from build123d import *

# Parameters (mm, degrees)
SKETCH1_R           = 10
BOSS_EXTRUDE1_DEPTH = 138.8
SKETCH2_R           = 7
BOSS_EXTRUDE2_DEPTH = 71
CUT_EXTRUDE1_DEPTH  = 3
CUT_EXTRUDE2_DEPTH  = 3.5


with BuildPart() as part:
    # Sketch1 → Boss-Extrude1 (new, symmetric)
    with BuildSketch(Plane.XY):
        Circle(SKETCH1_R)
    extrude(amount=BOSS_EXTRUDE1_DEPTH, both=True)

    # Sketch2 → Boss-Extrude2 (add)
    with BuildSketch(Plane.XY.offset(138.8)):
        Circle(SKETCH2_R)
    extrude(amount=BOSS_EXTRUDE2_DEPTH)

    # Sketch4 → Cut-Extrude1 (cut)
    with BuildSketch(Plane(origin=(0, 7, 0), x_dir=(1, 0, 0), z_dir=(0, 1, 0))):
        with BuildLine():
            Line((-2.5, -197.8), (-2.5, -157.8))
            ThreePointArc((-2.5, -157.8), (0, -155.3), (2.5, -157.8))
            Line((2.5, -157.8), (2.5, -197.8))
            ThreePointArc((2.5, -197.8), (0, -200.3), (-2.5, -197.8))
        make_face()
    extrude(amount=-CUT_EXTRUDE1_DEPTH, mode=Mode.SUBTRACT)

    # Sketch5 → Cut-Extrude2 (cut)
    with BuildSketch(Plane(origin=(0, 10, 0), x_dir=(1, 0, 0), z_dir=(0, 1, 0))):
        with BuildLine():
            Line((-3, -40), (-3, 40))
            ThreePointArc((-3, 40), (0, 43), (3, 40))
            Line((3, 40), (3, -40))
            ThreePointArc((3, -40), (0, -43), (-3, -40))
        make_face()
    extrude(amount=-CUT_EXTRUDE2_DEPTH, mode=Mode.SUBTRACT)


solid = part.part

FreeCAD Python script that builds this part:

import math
import FreeCAD as App
import Part
import Sketcher
from FreeCAD import Vector
Q = App.Units.Quantity

doc = App.newDocument("Part")
body = doc.addObject("PartDesign::Body", "Body")

sketch1 = body.newObject("Sketcher::SketchObject", "Sketch")
sketch1.AttachmentSupport = (doc.getObject("XY_Plane"), [""])
sketch1.MapMode = "FlatFace"
sketch1.addGeometry(Part.Circle(Vector(0, 0, 0), Vector(0, 0, 1), 10), False)
sketch1.addConstraint([
    Sketcher.Constraint("Coincident", 0, 3, -1, 1),
    Sketcher.Constraint("Diameter", 0, Q("20 mm")),
])
pad1 = body.newObject("PartDesign::Pad", "Pad")
pad1.Profile = sketch1
pad1.Length = 277.6
pad1.Midplane = True

sketch2 = body.newObject("Sketcher::SketchObject", "Sketch001")
sketch2.AttachmentSupport = (doc.getObject("XY_Plane"), [""])
sketch2.MapMode = "FlatFace"
sketch2.AttachmentOffset = App.Placement(Vector(0, 0, 138.8), App.Rotation())
sketch2.addGeometry(Part.Circle(Vector(0, 0, 0), Vector(0, 0, 1), 7), False)
sketch2.addConstraint([
    Sketcher.Constraint("Coincident", 0, 3, -1, 1),
    Sketcher.Constraint("Diameter", 0, Q("14 mm")),
])
pad2 = body.newObject("PartDesign::Pad", "Pad001")
pad2.Profile = sketch2
pad2.Length = 71

sketch3 = body.newObject("Sketcher::SketchObject", "Sketch002")
sketch3.AttachmentSupport = (doc.getObject("XZ_Plane"), [""])
sketch3.MapMode = "FlatFace"
sketch3.AttachmentOffset = App.Placement(Vector(0, 0, -7), App.Rotation())
sketch3.addGeometry([
    Part.LineSegment(Vector(-2.5, 157.8, 0), Vector(-2.5, 197.8, 0)),
    Part.ArcOfCircle(Part.Circle(Vector(0, 197.8, 0), Vector(0, 0, 1), 2.5), math.radians(0), math.radians(180)),
    Part.LineSegment(Vector(2.5, 197.8, 0), Vector(2.5, 157.8, 0)),
    Part.ArcOfCircle(Part.Circle(Vector(0, 157.8, 0), Vector(0, 0, 1), 2.5), math.radians(180), math.radians(360)),
], False)
sketch3.addConstraint([
    Sketcher.Constraint("Tangent", 0, 2, 1, 2),
    Sketcher.Constraint("Tangent", 1, 1, 2, 1),
    Sketcher.Constraint("Tangent", 2, 2, 3, 2),
    Sketcher.Constraint("Tangent", 3, 1, 0, 1),
    Sketcher.Constraint("Vertical", 0),
    Sketcher.Constraint("Vertical", 2),
    Sketcher.Constraint("PointOnObject", 1, 3, -2),
    Sketcher.Constraint("Radius", 1, Q("2.5 mm")),
    Sketcher.Constraint("DistanceY", 0, 1, 0, 2, Q("40 mm")),
    Sketcher.Constraint("DistanceY", -1, 1, 1, 3, Q("197.8 mm")),
])
pocket1 = body.newObject("PartDesign::Pocket", "Pocket")
pocket1.Profile = sketch3
pocket1.Length = 3
pocket1.Reversed = True

sketch4 = body.newObject("Sketcher::SketchObject", "Sketch003")
sketch4.AttachmentSupport = (doc.getObject("XZ_Plane"), [""])
sketch4.MapMode = "FlatFace"
sketch4.AttachmentOffset = App.Placement(Vector(0, 0, -10), App.Rotation())
sketch4.addGeometry([
    Part.LineSegment(Vector(-3, -40, 0), Vector(-3, 40, 0)),
    Part.ArcOfCircle(Part.Circle(Vector(0, 40, 0), Vector(0, 0, 1), 3), math.radians(0), math.radians(180)),
    Part.LineSegment(Vector(3, 40, 0), Vector(3, -40, 0)),
    Part.ArcOfCircle(Part.Circle(Vector(0, -40, 0), Vector(0, 0, 1), 3), math.radians(180), math.radians(360)),
], False)
sketch4.addConstraint([
    Sketcher.Constraint("Tangent", 0, 2, 1, 2),
    Sketcher.Constraint("Tangent", 1, 1, 2, 1),
    Sketcher.Constraint("Tangent", 2, 2, 3, 2),
    Sketcher.Constraint("Tangent", 3, 1, 0, 1),
    Sketcher.Constraint("Vertical", 0),
    Sketcher.Constraint("Vertical", 2),
    Sketcher.Constraint("Symmetric", 1, 3, 3, 3, -1, 1),
    Sketcher.Constraint("Radius", 1, Q("3 mm")),
    Sketcher.Constraint("DistanceY", 0, 1, 0, 2, Q("80 mm")),
])
pocket2 = body.newObject("PartDesign::Pocket", "Pocket001")
pocket2.Profile = sketch4
pocket2.Length = 3.5
pocket2.Reversed = True

doc.recompute()
